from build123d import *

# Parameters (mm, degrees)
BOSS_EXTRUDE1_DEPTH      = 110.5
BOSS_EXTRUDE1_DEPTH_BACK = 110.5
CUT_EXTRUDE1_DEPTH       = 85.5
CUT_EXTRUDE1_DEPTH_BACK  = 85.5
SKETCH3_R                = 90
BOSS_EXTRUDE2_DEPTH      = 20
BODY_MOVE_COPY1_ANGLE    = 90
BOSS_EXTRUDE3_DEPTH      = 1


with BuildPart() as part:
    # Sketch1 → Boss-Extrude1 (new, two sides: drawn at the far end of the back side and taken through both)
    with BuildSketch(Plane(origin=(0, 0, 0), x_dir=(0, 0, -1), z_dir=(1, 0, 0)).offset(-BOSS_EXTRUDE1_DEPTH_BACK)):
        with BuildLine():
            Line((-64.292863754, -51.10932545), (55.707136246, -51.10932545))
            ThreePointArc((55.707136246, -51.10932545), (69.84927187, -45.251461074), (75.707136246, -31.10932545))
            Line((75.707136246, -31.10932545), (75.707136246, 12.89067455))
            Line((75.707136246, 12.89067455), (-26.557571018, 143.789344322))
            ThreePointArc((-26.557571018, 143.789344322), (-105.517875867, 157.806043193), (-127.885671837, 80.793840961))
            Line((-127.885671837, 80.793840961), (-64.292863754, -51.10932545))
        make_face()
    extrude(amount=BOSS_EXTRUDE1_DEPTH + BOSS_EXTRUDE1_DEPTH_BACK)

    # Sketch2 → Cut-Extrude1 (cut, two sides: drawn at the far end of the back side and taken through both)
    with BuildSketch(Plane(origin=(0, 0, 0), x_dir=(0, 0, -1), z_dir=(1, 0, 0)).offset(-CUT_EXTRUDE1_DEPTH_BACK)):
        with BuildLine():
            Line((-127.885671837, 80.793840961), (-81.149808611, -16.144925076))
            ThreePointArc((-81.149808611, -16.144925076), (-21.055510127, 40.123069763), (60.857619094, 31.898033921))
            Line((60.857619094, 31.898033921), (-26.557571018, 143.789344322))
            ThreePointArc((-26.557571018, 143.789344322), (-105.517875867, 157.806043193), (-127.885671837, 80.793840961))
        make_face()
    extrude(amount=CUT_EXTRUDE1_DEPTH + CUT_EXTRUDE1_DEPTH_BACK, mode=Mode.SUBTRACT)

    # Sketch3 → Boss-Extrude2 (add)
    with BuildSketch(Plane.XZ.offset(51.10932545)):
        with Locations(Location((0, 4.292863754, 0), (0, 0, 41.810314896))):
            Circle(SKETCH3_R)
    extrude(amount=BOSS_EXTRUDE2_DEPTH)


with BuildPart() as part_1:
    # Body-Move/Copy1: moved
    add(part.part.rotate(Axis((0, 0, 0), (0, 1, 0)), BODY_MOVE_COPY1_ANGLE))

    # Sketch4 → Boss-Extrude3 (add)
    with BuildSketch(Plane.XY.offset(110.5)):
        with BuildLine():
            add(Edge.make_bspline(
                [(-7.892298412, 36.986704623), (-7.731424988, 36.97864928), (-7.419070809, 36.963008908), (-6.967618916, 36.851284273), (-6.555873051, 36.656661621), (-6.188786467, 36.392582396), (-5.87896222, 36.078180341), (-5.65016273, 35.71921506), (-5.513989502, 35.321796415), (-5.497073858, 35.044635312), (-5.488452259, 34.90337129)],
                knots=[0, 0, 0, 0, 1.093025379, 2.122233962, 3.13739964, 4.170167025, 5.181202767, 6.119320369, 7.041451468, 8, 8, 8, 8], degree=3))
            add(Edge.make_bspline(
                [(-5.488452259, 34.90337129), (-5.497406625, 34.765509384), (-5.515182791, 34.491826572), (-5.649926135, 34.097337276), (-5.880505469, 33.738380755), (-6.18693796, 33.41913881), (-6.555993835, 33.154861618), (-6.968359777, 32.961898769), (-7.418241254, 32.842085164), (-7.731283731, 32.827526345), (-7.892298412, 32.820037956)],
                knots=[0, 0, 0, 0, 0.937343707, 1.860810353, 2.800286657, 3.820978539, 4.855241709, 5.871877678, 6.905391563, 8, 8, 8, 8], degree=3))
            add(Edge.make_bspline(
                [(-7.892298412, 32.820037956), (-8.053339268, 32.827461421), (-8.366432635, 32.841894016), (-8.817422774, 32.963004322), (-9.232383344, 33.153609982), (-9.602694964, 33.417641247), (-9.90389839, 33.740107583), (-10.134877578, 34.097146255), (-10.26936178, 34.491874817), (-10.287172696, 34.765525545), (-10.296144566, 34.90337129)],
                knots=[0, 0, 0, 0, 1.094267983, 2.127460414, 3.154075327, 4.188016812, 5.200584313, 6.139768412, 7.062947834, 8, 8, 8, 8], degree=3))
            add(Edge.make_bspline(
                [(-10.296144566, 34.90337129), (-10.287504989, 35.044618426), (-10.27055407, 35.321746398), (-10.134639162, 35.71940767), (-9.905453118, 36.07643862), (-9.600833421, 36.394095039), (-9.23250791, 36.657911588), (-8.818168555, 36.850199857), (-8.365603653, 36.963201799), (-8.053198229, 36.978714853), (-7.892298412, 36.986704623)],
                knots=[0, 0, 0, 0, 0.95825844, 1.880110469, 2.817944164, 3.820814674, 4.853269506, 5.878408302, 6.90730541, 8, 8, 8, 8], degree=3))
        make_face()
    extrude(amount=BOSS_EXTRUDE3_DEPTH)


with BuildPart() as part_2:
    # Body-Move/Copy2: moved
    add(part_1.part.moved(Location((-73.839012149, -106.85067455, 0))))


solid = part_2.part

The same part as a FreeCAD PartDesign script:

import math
import FreeCAD as App
import Part
import Sketcher
Q = App.Units.Quantity

doc = App.newDocument("Part")
body = doc.addObject("PartDesign::Body", "Body")

sketch1 = body.newObject("Sketcher::SketchObject", "Sketch")
sketch1.AttachmentSupport = (doc.getObject("YZ_Plane"), [""])
sketch1.MapMode = "FlatFace"
sketch1.addGeometry(Part.LineSegment(App.Vector(-51, 64, 0), App.Vector(-51, -56, 0)), False)
sketch1.addGeometry(Part.ArcOfCircle(Part.Circle(App.Vector(-31, -56, 0), App.Vector(0, 0, 1), 20), math.radians(180), math.radians(270)), False)
sketch1.addGeometry(Part.LineSegment(App.Vector(-31, -76, 0), App.Vector(13, -76, 0)), False)
sketch1.addGeometry(Part.LineSegment(App.Vector(13, -76, 0), App.Vector(144, 27, 0)), False)
sketch1.addGeometry(Part.ArcOfCircle(Part.Circle(App.Vector(107, 74, 0), App.Vector(0, 0, 1), 60), math.radians(-52), math.radians(116)), False)
sketch1.addGeometry(Part.LineSegment(App.Vector(81, 128, 0), App.Vector(-51, 64, 0)), False)
sketch1.addConstraint(Sketcher.Constraint("Tangent", 0, 2, 1, 1))
sketch1.addConstraint(Sketcher.Constraint("Tangent", 1, 2, 2, 1))
sketch1.addConstraint(Sketcher.Constraint("Coincident", 2, 2, 3, 1))
sketch1.addConstraint(Sketcher.Constraint("Tangent", 3, 2, 4, 1))
sketch1.addConstraint(Sketcher.Constraint("Tangent", 4, 2, 5, 1))
sketch1.addConstraint(Sketcher.Constraint("Coincident", 5, 2, 0, 1))
sketch1.addConstraint(Sketcher.Constraint("Vertical", 0))
sketch1.addConstraint(Sketcher.Constraint("Horizontal", 2))
sketch1.addConstraint(Sketcher.Constraint("Radius", 1, Q("20 mm")))
sketch1.addConstraint(Sketcher.Constraint("Radius", 4, Q("60 mm")))
sketch1.addConstraint(Sketcher.Constraint("DistanceX", 2, 1, 2, 2, Q("44 mm")))
sketch1.addConstraint(Sketcher.Constraint("DistanceY", 0, 2, 0, 1, Q("120 mm")))
sketch1.addConstraint(Sketcher.Constraint("Distance", 3, Q("166.11 mm")))
sketch1.addConstraint(Sketcher.Constraint("DistanceX", 1, 3, 4, 3, Q("137.96 mm")))
sketch1.addConstraint(Sketcher.Constraint("DistanceY", -1, 1, 3, 2, Q("26.557571 mm")))
sketch1.addConstraint(Sketcher.Constraint("DistanceX", -1, 1, 4, 2, Q("80.793841 mm")))
pad1 = body.newObject("PartDesign::Pad", "Pad")
pad1.Profile = sketch1
pad1.Type = "TwoLengths"
pad1.Length = 110.5
pad1.Length2 = 110.5

sketch2 = body.newObject("Sketcher::SketchObject", "Sketch001")
sketch2.AttachmentSupport = (doc.getObject("YZ_Plane"), [""])
sketch2.MapMode = "FlatFace"
sketch2.addGeometry(Part.LineSegment(App.Vector(81, 128, 0), App.Vector(-16, 81, 0)), False)
sketch2.addGeometry(Part.ArcOfCircle(Part.Circle(App.Vector(-54, -11, 0), App.Vector(0, 0, 1), 100), math.radians(-30), math.radians(68)), False)
sketch2.addGeometry(Part.LineSegment(App.Vector(32, -61, 0), App.Vector(144, 27, 0)), False)
sketch2.addGeometry(Part.ArcOfCircle(Part.Circle(App.Vector(107, 74, 0), App.Vector(0, 0, 1), 60), math.radians(-52), math.radians(116)), False)
sketch2.addConstraint(Sketcher.Constraint("Coincident", 0, 2, 1, 2))
sketch2.addConstraint(Sketcher.Constraint("Coincident", 1, 1, 2, 1))
sketch2.addConstraint(Sketcher.Constraint("Tangent", 2, 2, 3, 1))
sketch2.addConstraint(Sketcher.Constraint("Tangent", 3, 2, 0, 1))
sketch2.addConstraint(Sketcher.Constraint("Radius", 3, Q("60 mm")))
sketch2.addConstraint(Sketcher.Constraint("Radius", 1, Q("99.545056 mm")))
sketch2.addConstraint(Sketcher.Constraint("DistanceY", 1, 3, 3, 3, Q("84.684699 mm")))
sketch2.addConstraint(Sketcher.Constraint("DistanceX", 0, 2, 3, 3, Q("122.9956 mm")))
sketch2.addConstraint(Sketcher.Constraint("DistanceY", 2, 2, 3, 2, Q("101.328101 mm")))
sketch2.addConstraint(Sketcher.Constraint("Distance", 0, Q("107.616752 mm")))
sketch2.addConstraint(Sketcher.Constraint("DistanceX", 1, 3, -1, 1, Q("54.17185 mm")))
sketch2.addConstraint(Sketcher.Constraint("DistanceY", -1, 1, 0, 2, Q("81.149809 mm")))
pocket1 = body.newObject("PartDesign::Pocket", "Pocket")
pocket1.Profile = sketch2
pocket1.Type = "TwoLengths"
pocket1.Length = 85.5
pocket1.Length2 = 85.5
pocket1.Reversed = True

sketch3 = body.newObject("Sketcher::SketchObject", "Sketch002")
sketch3.AttachmentSupport = (doc.getObject("XZ_Plane"), [""])
sketch3.MapMode = "FlatFace"
sketch3.AttachmentOffset = App.Placement(App.Vector(0, 0, 51.109325), App.Rotation())
sketch3.addGeometry(Part.Circle(App.Vector(0, 4, 0), App.Vector(0, 0, 1), 90), False)
sketch3.addConstraint(Sketcher.Constraint("PointOnObject", 0, 3, -2))
sketch3.addConstraint(Sketcher.Constraint("Diameter", 0, Q("180 mm")))
sketch3.addConstraint(Sketcher.Constraint("DistanceY", -1, 1, 0, 3, Q("4.292864 mm")))
pad2 = body.newObject("PartDesign::Pad", "Pad001")
pad2.Profile = sketch3
pad2.Length = 20
body2 = doc.addObject("PartDesign::Body", "Body001")
doc.recompute()

body.Placement = App.Placement(App.Vector(0, 0, 0), App.Rotation(App.Vector(0, 1, 0), 90))
boolean = body2.newObject("PartDesign::Boolean", "Boolean")
boolean.Type = "Fuse"
boolean.addObjects([body])

sketch4 = body2.newObject("Sketcher::SketchObject", "Sketch003")
sketch4.AttachmentSupport = (doc.getObject("XY_Plane001"), [""])
sketch4.MapMode = "FlatFace"
sketch4.AttachmentOffset = App.Placement(App.Vector(0, 0, 110.5), App.Rotation())
sketch4.addGeometry(Part.BSplineCurve([App.Vector(-7.892298, 36.986705, 0), App.Vector(-7.731425, 36.978649, 0), App.Vector(-7.419071, 36.963009, 0), App.Vector(-6.967619, 36.851284, 0), App.Vector(-6.555873, 36.656662, 0), App.Vector(-6.188786, 36.392582, 0), App.Vector(-5.878962, 36.07818, 0), App.Vector(-5.650163, 35.719215, 0), App.Vector(-5.51399, 35.321796, 0), App.Vector(-5.497074, 35.044635, 0), App.Vector(-5.488452, 34.903371, 0)], [4, 1, 1, 1, 1, 1, 1, 1, 4], [0, 1.093025379, 2.122233962, 3.13739964, 4.170167025, 5.181202767, 6.119320369, 7.041451468, 8], False, 3, [1, 1, 1, 1, 1, 1, 1, 1, 1, 1, 1], False), False)
sketch4.addGeometry(Part.BSplineCurve([App.Vector(-10.296145, 34.903371, 0), App.Vector(-10.287505, 35.044618, 0), App.Vector(-10.270554, 35.321746, 0), App.Vector(-10.134639, 35.719408, 0), App.Vector(-9.905453, 36.076439, 0), App.Vector(-9.600833, 36.394095, 0), App.Vector(-9.232508, 36.657912, 0), App.Vector(-8.818169, 36.8502, 0), App.Vector(-8.365604, 36.963202, 0), App.Vector(-8.053198, 36.978715, 0), App.Vector(-7.892298, 36.986705, 0)], [4, 1, 1, 1, 1, 1, 1, 1, 4], [0, 0.95825844, 1.880110469, 2.817944164, 3.820814674, 4.853269506, 5.878408302, 6.90730541, 8], False, 3, [1, 1, 1, 1, 1, 1, 1, 1, 1, 1, 1], False), False)
sketch4.addGeometry(Part.BSplineCurve([App.Vector(-7.892298, 32.820038, 0), App.Vector(-8.053339, 32.827461, 0), App.Vector(-8.366433, 32.841894, 0), App.Vector(-8.817423, 32.963004, 0), App.Vector(-9.232383, 33.15361, 0), App.Vector(-9.602695, 33.417641, 0), App.Vector(-9.903898, 33.740108, 0), App.Vector(-10.134878, 34.097146, 0), App.Vector(-10.269362, 34.491875, 0), App.Vector(-10.287173, 34.765526, 0), App.Vector(-10.296145, 34.903371, 0)], [4, 1, 1, 1, 1, 1, 1, 1, 4], [0, 1.094267983, 2.127460414, 3.154075327, 4.188016812, 5.200584313, 6.139768412, 7.062947834, 8], False, 3, [1, 1, 1, 1, 1, 1, 1, 1, 1, 1, 1], False), False)
sketch4.addGeometry(Part.BSplineCurve([App.Vector(-5.488452, 34.903371, 0), App.Vector(-5.497407, 34.765509, 0), App.Vector(-5.515183, 34.491827, 0), App.Vector(-5.649926, 34.097337, 0), App.Vector(-5.880505, 33.738381, 0), App.Vector(-6.186938, 33.419139, 0), App.Vector(-6.555994, 33.154862, 0), App.Vector(-6.96836, 32.961899, 0), App.Vector(-7.418241, 32.842085, 0), App.Vector(-7.731284, 32.827526, 0), App.Vector(-7.892298, 32.820038, 0)], [4, 1, 1, 1, 1, 1, 1, 1, 4], [0, 0.937343707, 1.860810353, 2.800286657, 3.820978539, 4.855241709, 5.871877678, 6.905391563, 8], False, 3, [1, 1, 1, 1, 1, 1, 1, 1, 1, 1, 1], False), False)
sketch4.addConstraint(Sketcher.Constraint("Block", 0))
sketch4.addConstraint(Sketcher.Constraint("Block", 1))
sketch4.addConstraint(Sketcher.Constraint("Block", 2))
sketch4.addConstraint(Sketcher.Constraint("Block", 3))
pad3 = body2.newObject("PartDesign::Pad", "Pad002")
pad3.Profile = sketch4
pad3.Length = 1
body3 = doc.addObject("PartDesign::Body", "Body002")
doc.recompute()

body2.Placement = App.Placement(App.Vector(-73.839012, -106.850675, 0), App.Rotation(App.Vector(0, 0, 1), 0))
boolean2 = body3.newObject("PartDesign::Boolean", "Boolean001")
boolean2.Type = "Fuse"
boolean2.addObjects([body2])

doc.recompute()
